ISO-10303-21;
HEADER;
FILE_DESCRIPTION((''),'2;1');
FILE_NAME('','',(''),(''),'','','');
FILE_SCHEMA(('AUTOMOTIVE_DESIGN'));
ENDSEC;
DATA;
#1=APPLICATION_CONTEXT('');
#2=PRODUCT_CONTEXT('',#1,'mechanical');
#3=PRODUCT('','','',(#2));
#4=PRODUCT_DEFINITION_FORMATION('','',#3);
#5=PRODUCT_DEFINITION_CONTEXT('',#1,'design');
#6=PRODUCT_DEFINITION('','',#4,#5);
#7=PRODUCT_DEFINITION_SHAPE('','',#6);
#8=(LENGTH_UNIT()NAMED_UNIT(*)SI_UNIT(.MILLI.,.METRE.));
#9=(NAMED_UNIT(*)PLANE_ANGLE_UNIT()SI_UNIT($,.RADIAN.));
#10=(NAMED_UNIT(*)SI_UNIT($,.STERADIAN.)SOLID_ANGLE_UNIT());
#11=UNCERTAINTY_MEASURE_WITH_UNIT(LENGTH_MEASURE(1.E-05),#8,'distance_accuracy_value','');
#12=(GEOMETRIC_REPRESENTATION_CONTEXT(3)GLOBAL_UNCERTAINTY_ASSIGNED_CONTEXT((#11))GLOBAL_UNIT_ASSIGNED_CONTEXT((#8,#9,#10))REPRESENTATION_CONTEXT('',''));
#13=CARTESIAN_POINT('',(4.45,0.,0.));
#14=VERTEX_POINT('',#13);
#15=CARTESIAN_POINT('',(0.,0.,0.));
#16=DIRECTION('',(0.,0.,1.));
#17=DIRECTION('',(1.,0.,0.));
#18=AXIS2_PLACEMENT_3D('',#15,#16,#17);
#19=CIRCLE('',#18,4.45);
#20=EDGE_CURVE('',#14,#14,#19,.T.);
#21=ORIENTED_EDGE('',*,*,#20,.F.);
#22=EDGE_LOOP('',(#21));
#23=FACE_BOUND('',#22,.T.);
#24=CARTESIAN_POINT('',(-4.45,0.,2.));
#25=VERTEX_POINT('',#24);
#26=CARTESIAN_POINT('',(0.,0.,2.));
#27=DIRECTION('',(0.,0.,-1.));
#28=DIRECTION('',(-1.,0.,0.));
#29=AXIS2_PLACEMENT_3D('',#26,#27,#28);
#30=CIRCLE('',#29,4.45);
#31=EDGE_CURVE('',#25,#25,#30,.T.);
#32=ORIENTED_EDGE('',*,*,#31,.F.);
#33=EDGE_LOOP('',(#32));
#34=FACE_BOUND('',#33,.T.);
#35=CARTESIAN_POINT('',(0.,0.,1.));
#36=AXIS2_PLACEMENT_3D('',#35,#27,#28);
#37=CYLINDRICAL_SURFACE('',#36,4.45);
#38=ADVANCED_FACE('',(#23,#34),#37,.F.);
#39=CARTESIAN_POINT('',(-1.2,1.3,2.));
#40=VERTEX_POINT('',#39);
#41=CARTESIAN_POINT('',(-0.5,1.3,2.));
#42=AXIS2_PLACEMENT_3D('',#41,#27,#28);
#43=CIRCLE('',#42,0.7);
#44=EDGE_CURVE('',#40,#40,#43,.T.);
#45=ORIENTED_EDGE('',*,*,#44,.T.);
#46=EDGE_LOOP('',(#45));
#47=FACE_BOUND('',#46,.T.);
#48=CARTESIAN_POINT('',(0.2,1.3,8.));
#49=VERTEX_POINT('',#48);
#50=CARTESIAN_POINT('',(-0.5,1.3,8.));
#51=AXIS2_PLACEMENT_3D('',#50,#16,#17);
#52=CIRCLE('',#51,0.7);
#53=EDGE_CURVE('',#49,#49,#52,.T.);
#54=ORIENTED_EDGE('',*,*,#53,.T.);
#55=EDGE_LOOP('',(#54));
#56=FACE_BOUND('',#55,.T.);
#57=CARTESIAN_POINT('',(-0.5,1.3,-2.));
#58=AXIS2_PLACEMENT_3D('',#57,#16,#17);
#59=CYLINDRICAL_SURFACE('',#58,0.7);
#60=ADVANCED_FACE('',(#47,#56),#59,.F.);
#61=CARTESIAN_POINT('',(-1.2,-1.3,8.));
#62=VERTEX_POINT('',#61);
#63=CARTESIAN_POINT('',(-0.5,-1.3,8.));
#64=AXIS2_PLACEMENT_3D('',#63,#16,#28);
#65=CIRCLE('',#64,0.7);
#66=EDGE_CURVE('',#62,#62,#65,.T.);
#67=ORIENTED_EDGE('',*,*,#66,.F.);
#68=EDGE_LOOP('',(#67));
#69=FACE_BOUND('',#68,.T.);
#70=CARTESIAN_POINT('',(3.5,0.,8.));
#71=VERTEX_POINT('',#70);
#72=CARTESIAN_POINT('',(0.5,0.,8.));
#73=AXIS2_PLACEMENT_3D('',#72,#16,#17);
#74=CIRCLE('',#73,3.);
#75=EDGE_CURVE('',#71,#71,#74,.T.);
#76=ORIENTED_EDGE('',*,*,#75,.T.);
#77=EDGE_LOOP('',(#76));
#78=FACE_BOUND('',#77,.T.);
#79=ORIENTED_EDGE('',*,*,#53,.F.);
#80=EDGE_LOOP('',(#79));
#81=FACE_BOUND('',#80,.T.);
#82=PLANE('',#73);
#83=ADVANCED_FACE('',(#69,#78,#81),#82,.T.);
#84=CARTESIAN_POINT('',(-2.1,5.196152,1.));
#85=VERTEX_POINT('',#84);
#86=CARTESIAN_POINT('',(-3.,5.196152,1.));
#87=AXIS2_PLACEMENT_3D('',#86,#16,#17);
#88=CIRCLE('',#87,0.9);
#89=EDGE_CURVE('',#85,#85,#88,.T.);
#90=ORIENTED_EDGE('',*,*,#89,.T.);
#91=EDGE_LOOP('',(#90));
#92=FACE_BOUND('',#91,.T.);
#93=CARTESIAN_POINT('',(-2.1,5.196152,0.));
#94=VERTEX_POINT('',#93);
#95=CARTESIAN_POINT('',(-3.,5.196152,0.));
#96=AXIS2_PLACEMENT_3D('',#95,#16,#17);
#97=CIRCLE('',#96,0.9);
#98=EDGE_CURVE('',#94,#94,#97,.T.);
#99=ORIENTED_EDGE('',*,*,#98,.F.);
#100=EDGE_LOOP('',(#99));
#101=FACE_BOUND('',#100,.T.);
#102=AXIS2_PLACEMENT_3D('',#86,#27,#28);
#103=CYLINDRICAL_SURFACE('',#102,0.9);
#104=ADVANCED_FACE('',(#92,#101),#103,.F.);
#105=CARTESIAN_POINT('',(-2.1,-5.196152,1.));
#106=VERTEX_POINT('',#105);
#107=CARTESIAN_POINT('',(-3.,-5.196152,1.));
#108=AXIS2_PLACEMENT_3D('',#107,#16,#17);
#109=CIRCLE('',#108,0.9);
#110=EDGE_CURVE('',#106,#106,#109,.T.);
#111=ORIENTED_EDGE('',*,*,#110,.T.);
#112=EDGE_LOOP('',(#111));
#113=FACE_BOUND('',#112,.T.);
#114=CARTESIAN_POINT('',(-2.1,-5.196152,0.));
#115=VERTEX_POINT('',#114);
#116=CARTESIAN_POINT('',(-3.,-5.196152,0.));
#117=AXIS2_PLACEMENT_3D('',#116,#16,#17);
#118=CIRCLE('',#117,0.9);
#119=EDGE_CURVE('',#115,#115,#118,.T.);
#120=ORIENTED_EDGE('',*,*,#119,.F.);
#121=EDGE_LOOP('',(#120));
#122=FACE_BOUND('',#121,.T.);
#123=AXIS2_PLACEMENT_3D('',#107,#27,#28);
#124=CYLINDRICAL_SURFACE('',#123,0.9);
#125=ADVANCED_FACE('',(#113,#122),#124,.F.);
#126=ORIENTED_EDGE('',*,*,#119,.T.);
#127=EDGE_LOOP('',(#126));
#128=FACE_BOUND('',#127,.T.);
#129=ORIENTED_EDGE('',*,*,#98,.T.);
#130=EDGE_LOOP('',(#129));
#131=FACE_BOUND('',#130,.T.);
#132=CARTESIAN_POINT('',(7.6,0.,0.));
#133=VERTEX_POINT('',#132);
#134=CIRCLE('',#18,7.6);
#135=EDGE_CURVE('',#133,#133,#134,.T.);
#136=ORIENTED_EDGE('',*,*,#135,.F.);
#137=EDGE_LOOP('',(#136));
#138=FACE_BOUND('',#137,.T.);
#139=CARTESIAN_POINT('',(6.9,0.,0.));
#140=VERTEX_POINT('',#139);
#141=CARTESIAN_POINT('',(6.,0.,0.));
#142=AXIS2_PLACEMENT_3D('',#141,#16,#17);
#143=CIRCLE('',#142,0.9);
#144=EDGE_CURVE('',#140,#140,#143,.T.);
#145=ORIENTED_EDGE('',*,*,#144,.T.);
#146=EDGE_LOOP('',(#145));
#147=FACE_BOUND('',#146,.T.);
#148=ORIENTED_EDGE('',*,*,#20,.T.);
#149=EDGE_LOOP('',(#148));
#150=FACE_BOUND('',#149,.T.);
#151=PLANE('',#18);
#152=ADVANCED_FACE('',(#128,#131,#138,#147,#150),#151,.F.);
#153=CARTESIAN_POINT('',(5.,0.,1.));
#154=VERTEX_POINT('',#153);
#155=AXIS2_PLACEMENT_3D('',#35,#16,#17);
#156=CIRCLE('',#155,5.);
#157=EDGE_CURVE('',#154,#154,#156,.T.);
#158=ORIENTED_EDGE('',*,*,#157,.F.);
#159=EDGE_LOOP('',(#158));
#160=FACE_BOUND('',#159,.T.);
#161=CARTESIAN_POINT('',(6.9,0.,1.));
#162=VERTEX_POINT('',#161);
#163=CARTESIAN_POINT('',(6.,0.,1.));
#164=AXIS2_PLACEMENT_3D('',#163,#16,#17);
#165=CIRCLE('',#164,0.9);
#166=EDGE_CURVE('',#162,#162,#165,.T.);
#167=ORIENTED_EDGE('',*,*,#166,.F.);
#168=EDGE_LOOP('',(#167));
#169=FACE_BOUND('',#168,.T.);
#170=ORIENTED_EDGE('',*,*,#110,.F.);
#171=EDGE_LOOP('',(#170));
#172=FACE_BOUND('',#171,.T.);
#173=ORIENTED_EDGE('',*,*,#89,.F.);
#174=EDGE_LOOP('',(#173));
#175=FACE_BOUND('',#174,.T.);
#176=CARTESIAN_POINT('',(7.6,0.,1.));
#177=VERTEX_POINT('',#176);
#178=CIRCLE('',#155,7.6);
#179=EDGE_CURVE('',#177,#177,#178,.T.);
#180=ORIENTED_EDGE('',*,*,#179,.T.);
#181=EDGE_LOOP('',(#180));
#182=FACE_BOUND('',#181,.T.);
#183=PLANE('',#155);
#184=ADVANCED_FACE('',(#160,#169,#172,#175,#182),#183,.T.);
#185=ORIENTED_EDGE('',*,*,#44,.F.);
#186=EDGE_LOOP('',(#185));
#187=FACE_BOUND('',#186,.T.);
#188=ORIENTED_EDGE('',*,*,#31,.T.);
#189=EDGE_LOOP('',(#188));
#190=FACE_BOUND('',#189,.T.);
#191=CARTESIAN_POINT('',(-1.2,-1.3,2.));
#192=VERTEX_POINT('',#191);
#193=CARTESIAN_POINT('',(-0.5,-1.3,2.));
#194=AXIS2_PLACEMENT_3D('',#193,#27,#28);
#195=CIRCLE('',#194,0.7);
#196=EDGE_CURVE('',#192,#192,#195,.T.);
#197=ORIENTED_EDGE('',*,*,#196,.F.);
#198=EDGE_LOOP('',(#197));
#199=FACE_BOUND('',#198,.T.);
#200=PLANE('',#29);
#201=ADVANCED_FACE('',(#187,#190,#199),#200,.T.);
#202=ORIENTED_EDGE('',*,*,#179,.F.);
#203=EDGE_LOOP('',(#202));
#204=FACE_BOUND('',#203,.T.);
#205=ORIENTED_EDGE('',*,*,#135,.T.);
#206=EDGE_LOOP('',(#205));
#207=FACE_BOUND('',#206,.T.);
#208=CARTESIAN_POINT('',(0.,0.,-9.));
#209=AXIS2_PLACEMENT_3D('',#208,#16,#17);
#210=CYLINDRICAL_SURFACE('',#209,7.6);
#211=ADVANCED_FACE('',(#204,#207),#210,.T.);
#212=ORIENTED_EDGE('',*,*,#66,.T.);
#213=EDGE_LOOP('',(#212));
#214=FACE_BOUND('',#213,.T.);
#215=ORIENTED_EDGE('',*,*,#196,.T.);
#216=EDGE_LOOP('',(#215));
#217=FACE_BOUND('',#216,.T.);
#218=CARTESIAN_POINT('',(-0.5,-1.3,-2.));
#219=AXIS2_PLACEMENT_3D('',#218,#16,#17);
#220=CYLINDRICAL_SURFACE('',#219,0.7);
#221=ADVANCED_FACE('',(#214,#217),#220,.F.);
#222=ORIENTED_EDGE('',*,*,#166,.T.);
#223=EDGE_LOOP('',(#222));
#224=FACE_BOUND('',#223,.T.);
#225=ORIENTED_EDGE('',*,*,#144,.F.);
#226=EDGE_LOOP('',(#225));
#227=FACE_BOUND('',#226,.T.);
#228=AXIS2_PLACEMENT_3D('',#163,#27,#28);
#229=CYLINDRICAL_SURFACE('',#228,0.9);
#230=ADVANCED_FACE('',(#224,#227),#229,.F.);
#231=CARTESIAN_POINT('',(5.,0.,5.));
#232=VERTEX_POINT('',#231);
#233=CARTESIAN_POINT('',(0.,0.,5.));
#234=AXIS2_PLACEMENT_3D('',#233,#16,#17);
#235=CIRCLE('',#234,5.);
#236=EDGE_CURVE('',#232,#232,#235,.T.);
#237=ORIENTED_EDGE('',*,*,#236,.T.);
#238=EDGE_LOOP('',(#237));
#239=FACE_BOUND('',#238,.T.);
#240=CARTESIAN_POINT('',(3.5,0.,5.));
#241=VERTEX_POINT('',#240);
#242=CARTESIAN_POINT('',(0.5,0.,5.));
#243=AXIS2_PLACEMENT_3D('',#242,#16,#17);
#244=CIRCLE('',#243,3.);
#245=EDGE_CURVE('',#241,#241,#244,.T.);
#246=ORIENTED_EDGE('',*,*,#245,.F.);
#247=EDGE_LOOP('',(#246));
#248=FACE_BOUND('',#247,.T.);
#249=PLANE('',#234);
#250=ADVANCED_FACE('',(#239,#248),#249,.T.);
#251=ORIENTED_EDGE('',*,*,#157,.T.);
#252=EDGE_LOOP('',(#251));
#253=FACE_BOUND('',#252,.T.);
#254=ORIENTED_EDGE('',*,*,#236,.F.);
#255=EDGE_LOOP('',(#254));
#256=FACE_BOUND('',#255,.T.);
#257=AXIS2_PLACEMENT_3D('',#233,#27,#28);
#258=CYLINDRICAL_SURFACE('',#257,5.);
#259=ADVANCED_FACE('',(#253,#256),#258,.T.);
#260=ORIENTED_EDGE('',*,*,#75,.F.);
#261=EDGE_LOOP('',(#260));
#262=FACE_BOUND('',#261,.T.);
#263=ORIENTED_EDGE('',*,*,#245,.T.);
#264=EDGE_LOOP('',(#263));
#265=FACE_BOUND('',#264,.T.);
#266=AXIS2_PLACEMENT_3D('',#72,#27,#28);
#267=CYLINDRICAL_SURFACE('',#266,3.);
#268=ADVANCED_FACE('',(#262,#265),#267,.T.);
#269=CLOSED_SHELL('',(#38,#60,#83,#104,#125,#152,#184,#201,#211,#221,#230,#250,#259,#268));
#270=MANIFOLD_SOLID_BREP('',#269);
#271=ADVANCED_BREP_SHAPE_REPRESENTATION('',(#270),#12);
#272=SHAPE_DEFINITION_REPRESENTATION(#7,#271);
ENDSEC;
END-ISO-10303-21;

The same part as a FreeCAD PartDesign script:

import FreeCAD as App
import Part
import Sketcher

V = App.Vector

doc = App.newDocument("Part")
body = doc.addObject("PartDesign::Body", "Body")

# Sketch on XY plane
sketch1 = body.newObject("Sketcher::SketchObject", "Sketch")
sketch1.AttachmentSupport = (doc.getObject("XY_Plane"), [""])
sketch1.MapMode = "FlatFace"
sketch1.addGeometry([
    Part.Circle(V(0, 0, 0), V(0, 0, 1), 7.5),  # 0
    Part.Circle(V(-3, -5.2, 0), V(0, 0, 1), 0.9),  # 1
    Part.Circle(V(0, 0, 0), V(0, 0, 1), 4.5),  # 2
    Part.Circle(V(-3, 5.2, 0), V(0, 0, 1), 0.9),  # 3
    Part.Circle(V(6, 0, 0), V(0, 0, 1), 0.9),  # 4
], False)
sketch1.addConstraint([
    Sketcher.Constraint("Coincident", 0, 3, -1, 1),
    Sketcher.Constraint("Coincident", 2, 3, -1, 1),
    Sketcher.Constraint("Equal", 1, 3),
    Sketcher.Constraint("Equal", 3, 4),
    Sketcher.Constraint("Symmetric", 1, 3, 3, 3, -1),
    Sketcher.Constraint("PointOnObject", 4, 3, -1),
    Sketcher.Constraint("Diameter", 0, 15.0),
    Sketcher.Constraint("Diameter", 1, 1.8),
    Sketcher.Constraint("Diameter", 2, 8.9),
    Sketcher.Constraint("DistanceX", 1, 3, -1, 1, 3.0),
    Sketcher.Constraint("DistanceX", -1, 1, 4, 3, 6.0),
    Sketcher.Constraint("DistanceY", 1, 3, -1, 1, 5.196152),
])
pad1 = body.newObject("PartDesign::Pad", "Pad")
pad1.Profile = sketch1
pad1.Length = 1

# Sketch on XY plane
sketch2 = body.newObject("Sketcher::SketchObject", "Sketch001")
sketch2.AttachmentSupport = (doc.getObject("XY_Plane"), [""])
sketch2.MapMode = "FlatFace"
sketch2.AttachmentOffset = App.Placement(V(0, 0, 1), App.Rotation())
sketch2.addGeometry(Part.Circle(V(0, 0, 0), V(0, 0, 1), 5), False)
sketch2.addConstraint([
    Sketcher.Constraint("Coincident", 0, 3, -1, 1),
    Sketcher.Constraint("Diameter", 0, 10.0),
])
pad2 = body.newObject("PartDesign::Pad", "Pad001")
pad2.Profile = sketch2
pad2.Length = 4

# Sketch on XY plane
sketch3 = body.newObject("Sketcher::SketchObject", "Sketch002")
sketch3.AttachmentSupport = (doc.getObject("XY_Plane"), [""])
sketch3.MapMode = "FlatFace"
sketch3.AttachmentOffset = App.Placement(V(0, 0, 1), App.Rotation())
sketch3.addGeometry(Part.Circle(V(0, 0, 0), V(0, 0, 1), 4.5), False)
sketch3.addConstraint([
    Sketcher.Constraint("Coincident", 0, 3, -1, 1),
    Sketcher.Constraint("Diameter", 0, 8.9),
])
pocket1 = body.newObject("PartDesign::Pocket", "Pocket")
pocket1.Profile = sketch3
pocket1.Length = 1
pocket1.Reversed = True

# Sketch on XY plane
sketch4 = body.newObject("Sketcher::SketchObject", "Sketch003")
sketch4.AttachmentSupport = (doc.getObject("XY_Plane"), [""])
sketch4.MapMode = "FlatFace"
sketch4.AttachmentOffset = App.Placement(V(0, 0, 5), App.Rotation())
sketch4.addGeometry(Part.Circle(V(0.5, 0, 0), V(0, 0, 1), 3), False)
sketch4.addConstraint([
    Sketcher.Constraint("PointOnObject", 0, 3, -1),
    Sketcher.Constraint("Diameter", 0, 6.0),
    Sketcher.Constraint("DistanceX", -1, 1, 0, 3, 0.5),
])
pad3 = body.newObject("PartDesign::Pad", "Pad002")
pad3.Profile = sketch4
pad3.Length = 3

# Sketch on XY plane
sketch5 = body.newObject("Sketcher::SketchObject", "Sketch004")
sketch5.AttachmentSupport = (doc.getObject("XY_Plane"), [""])
sketch5.MapMode = "FlatFace"
sketch5.AttachmentOffset = App.Placement(V(0, 0, 1), App.Rotation())
sketch5.addGeometry([
    Part.Circle(V(0, 0, 0), V(0, 0, 1), 9),  # 0
    Part.Circle(V(-3, -5.2, 0), V(0, 0, 1), 0.9),  # 1
    Part.Circle(V(0, 0, 0), V(0, 0, 1), 4.5),  # 2
    Part.Circle(V(-3, 5.2, 0), V(0, 0, 1), 0.9),  # 3
    Part.Circle(V(6, 0, 0), V(0, 0, 1), 0.9),  # 4
], False)
sketch5.addConstraint([
    Sketcher.Constraint("Coincident", 0, 3, -1, 1),
    Sketcher.Constraint("Coincident", 2, 3, -1, 1),
    Sketcher.Constraint("Equal", 1, 3),
    Sketcher.Constraint("Equal", 3, 4),
    Sketcher.Constraint("Symmetric", 1, 3, 3, 3, -1),
    Sketcher.Constraint("PointOnObject", 4, 3, -1),
    Sketcher.Constraint("Diameter", 0, 18.0),
    Sketcher.Constraint("Diameter", 1, 1.8),
    Sketcher.Constraint("Diameter", 2, 8.9),
    Sketcher.Constraint("DistanceX", 1, 3, -1, 1, 3.0),
    Sketcher.Constraint("DistanceX", -1, 1, 4, 3, 6.0),
    Sketcher.Constraint("DistanceY", 1, 3, -1, 1, 5.196152),
])
pad4 = body.newObject("PartDesign::Pad", "Pad003")
pad4.Profile = sketch5
pad4.Length = 1
pad4.Reversed = True

# Sketch on XY plane
sketch6 = body.newObject("Sketcher::SketchObject", "Sketch005")
sketch6.AttachmentSupport = (doc.getObject("XY_Plane"), [""])
sketch6.MapMode = "FlatFace"
sketch6.AttachmentOffset = App.Placement(V(0, 0, 8), App.Rotation())
sketch6.addGeometry([
    Part.Circle(V(-0.5, 1.3, 0), V(0, 0, 1), 0.7),
    Part.Circle(V(-0.5, -1.3, 0), V(0, 0, 1), 0.7),
], False)
sketch6.addConstraint([
    Sketcher.Constraint("Equal", 0, 1),
    Sketcher.Constraint("Symmetric", 0, 3, 1, 3, -1),
    Sketcher.Constraint("Diameter", 0, 1.4),
    Sketcher.Constraint("DistanceX", 0, 3, -1, 1, 0.5),
    Sketcher.Constraint("DistanceY", -1, 1, 0, 3, 1.3),
])
pocket2 = body.newObject("PartDesign::Pocket", "Pocket001")
pocket2.Profile = sketch6
pocket2.Length = 10

# Sketch on XY plane
sketch7 = body.newObject("Sketcher::SketchObject", "Sketch006")
sketch7.AttachmentSupport = (doc.getObject("XY_Plane"), [""])
sketch7.MapMode = "FlatFace"
sketch7.AttachmentOffset = App.Placement(V(0, 0, 1), App.Rotation())
sketch7.addGeometry([
    Part.Circle(V(0, 0, 0), V(0, 0, 1), 9),
    Part.Circle(V(0, 0, 0), V(0, 0, 1), 8),
], False)
sketch7.addConstraint([
    Sketcher.Constraint("Coincident", 0, 3, -1, 1),
    Sketcher.Constraint("Coincident", 1, 3, -1, 1),
    Sketcher.Constraint("Diameter", 0, 18.0),
    Sketcher.Constraint("Diameter", 1, 15.2),
])
pocket3 = body.newObject("PartDesign::Pocket", "Pocket002")
pocket3.Profile = sketch7
pocket3.Length = 10

doc.recompute()
